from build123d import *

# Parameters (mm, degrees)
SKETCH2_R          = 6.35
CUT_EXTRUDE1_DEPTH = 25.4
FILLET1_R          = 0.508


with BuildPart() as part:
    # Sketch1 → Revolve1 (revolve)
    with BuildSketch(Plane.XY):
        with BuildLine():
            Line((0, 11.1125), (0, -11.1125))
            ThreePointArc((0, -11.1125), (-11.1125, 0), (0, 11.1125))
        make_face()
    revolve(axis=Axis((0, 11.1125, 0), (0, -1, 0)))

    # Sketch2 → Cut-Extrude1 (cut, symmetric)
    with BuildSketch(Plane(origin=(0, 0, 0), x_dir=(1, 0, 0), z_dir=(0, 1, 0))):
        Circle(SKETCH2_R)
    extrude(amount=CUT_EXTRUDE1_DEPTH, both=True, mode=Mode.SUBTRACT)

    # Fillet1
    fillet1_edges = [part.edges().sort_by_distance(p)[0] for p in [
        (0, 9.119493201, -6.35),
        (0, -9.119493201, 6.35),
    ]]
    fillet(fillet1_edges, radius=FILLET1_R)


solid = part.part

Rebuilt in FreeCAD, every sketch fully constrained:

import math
import FreeCAD as App
import Part
import Sketcher
from FreeCAD import Vector
Q = App.Units.Quantity


def edges_at(feature, points):
    """Names of the edges that pass closest to the given points."""
    edges = feature.Shape.Edges
    near = lambda p: min(range(len(edges)), key=lambda i: edges[i].distToShape(Part.Vertex(*p))[0])
    return sorted({f"Edge{near(p) + 1}" for p in points})

doc = App.newDocument("Part")
body = doc.addObject("PartDesign::Body", "Body")

sketch1 = body.newObject("Sketcher::SketchObject", "Sketch")
sketch1.AttachmentSupport = (doc.getObject("XY_Plane"), [""])
sketch1.MapMode = "FlatFace"
sketch1.addGeometry([
    Part.LineSegment(Vector(0, -11.1125, 0), Vector(0, 11.1125, 0)),
    Part.ArcOfCircle(Part.Circle(Vector(0, 0, 0), Vector(0, 0, 1), 11.1125), math.radians(90), math.radians(270)),
], False)
sketch1.addConstraint([
    Sketcher.Constraint("Coincident", 0, 1, 1, 2),
    Sketcher.Constraint("Coincident", 1, 1, 0, 2),
    Sketcher.Constraint("Vertical", 0),
    Sketcher.Constraint("Coincident", 1, 3, -1, 1),
    Sketcher.Constraint("PointOnObject", 0, 1, -2),
    Sketcher.Constraint("Radius", 1, Q("0.4375 in")),
])
revolution = body.newObject("PartDesign::Revolution", "Revolution")
revolution.Profile = sketch1
revolution.ReferenceAxis = (sketch1, ["V_Axis"])
revolution.Angle = 360

sketch2 = body.newObject("Sketcher::SketchObject", "Sketch001")
sketch2.AttachmentSupport = (doc.getObject("XZ_Plane"), [""])
sketch2.MapMode = "FlatFace"
sketch2.addGeometry(Part.Circle(Vector(0, 0, 0), Vector(0, 0, 1), 6.35), False)
sketch2.addConstraint([
    Sketcher.Constraint("Coincident", 0, 3, -1, 1),
    Sketcher.Constraint("Diameter", 0, Q("0.5 in")),
])
pocket1 = body.newObject("PartDesign::Pocket", "Pocket")
pocket1.Profile = sketch2
pocket1.Length = Q("2 in")
pocket1.Midplane = True
doc.recompute()

fillet = body.newObject("PartDesign::Fillet", "Fillet")
fillet.Base = (pocket1, edges_at(pocket1, [(0, 9.119, -6.35), (0, -9.119, 6.35)]))
fillet.Radius = Q("0.02 in")

doc.recompute()
